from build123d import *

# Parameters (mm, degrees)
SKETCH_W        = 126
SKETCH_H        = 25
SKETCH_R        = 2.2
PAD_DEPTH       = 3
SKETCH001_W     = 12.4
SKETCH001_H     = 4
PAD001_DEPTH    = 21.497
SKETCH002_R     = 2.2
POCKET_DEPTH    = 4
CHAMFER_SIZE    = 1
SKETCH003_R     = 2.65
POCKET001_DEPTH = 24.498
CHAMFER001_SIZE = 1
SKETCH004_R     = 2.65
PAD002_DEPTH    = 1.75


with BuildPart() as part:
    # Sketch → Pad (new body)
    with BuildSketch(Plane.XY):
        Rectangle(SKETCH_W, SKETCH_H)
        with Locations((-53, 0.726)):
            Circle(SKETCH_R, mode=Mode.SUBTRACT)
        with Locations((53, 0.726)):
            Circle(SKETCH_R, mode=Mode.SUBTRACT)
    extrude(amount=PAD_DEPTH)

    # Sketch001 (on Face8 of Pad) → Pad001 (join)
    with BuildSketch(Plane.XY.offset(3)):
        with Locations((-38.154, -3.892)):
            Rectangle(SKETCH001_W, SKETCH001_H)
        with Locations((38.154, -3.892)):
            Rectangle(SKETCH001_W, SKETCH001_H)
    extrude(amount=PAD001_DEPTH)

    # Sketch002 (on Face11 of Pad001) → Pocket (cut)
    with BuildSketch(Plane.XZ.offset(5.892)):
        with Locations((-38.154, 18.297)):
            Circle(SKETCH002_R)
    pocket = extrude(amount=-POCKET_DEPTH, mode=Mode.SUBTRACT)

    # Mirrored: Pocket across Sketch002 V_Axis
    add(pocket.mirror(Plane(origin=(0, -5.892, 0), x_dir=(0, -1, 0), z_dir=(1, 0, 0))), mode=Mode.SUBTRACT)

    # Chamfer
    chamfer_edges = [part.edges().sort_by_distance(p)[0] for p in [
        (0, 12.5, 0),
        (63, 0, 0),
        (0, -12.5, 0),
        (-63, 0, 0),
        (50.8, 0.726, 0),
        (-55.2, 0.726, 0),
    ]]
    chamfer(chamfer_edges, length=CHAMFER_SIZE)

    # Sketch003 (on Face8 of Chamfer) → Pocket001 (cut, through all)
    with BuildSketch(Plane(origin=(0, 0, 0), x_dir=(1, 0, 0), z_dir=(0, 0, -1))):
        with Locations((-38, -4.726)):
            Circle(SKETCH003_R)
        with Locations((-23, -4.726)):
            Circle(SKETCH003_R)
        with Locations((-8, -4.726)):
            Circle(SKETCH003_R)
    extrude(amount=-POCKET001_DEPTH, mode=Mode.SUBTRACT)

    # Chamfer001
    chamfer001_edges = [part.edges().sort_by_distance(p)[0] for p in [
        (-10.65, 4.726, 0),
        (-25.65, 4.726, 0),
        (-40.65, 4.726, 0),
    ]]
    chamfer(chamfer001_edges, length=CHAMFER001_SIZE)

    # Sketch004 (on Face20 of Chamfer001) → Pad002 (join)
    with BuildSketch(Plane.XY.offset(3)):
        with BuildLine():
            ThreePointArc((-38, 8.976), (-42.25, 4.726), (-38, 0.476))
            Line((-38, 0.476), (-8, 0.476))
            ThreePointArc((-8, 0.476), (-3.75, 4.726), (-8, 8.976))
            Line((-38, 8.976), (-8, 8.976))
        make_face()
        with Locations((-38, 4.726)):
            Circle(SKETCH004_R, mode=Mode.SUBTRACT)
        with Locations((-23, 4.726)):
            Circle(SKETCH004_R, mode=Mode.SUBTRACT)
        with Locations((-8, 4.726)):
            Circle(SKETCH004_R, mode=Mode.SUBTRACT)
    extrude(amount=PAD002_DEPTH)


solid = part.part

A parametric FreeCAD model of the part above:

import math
import FreeCAD as App
import Part
import Sketcher

V = App.Vector


def edges_at(feature, points):
    """Names of the edges that pass closest to the given points."""
    edges = feature.Shape.Edges
    near = lambda p: min(range(len(edges)), key=lambda i: edges[i].distToShape(Part.Vertex(*p))[0])
    return sorted({f"Edge{near(p) + 1}" for p in points})


def add_polygon(sketch, points):
    """Adds a closed chain of lines whose ends are joined by coincident constraints."""
    first, n = sketch.GeometryCount, len(points)
    for a, b in zip(points, points[1:] + points[:1]):
        sketch.addGeometry(Part.LineSegment(App.Vector(*a, 0), App.Vector(*b, 0)), False)
    for i in range(n):
        sketch.addConstraint(Sketcher.Constraint("Coincident", first + i, 2, first + (i + 1) % n, 1))

doc = App.newDocument("Part")
body = doc.addObject("PartDesign::Body", "Body")

sketch1 = body.newObject("Sketcher::SketchObject", "Sketch")
sketch1.AttachmentSupport = (doc.getObject("XY_Plane"), [""])
sketch1.MapMode = "FlatFace"
add_polygon(sketch1, [(-63, 12.5), (-63, -12.5), (63, -12.5), (63, 12.5)])
sketch1.addGeometry(Part.Circle(V(-53, 0.7, 0), V(0, 0, 1), 2.2), False)
sketch1.addGeometry(Part.Circle(V(53, 0.7, 0), V(0, 0, 1), 2.2), False)
sketch1.addConstraint([
    Sketcher.Constraint("Vertical", 0),
    Sketcher.Constraint("Horizontal", 1),
    Sketcher.Constraint("Vertical", 2),
    Sketcher.Constraint("Horizontal", 3),
    Sketcher.Constraint("Equal", 4, 5),
    Sketcher.Constraint("Symmetric", 0, 2, 2, 2, -1, 1),
    Sketcher.Constraint("Symmetric", 4, 3, 5, 3, -2),
    Sketcher.Constraint("Diameter", 4, 4.4),
    Sketcher.Constraint("DistanceX", 1, 1, 1, 2, 126.0),
    Sketcher.Constraint("DistanceY", 0, 2, 0, 1, 25.0),
    Sketcher.Constraint("DistanceX", 4, 3, -1, 1, 53.0),
    Sketcher.Constraint("DistanceY", -1, 1, 4, 3, 0.726),
])
pad1 = body.newObject("PartDesign::Pad", "Pad")
pad1.Profile = sketch1
pad1.Length = 3

sketch2 = body.newObject("Sketcher::SketchObject", "Sketch001")
sketch2.AttachmentSupport = (doc.getObject("XY_Plane"), [""])
sketch2.MapMode = "FlatFace"
sketch2.AttachmentOffset = App.Placement(V(0, 0, 3), App.Rotation())
add_polygon(sketch2, [(-44.4, -1.9), (-44.4, -5.9), (-32, -5.9), (-32, -1.9)])
add_polygon(sketch2, [(32, -1.9), (32, -5.9), (44.4, -5.9), (44.4, -1.9)])
sketch2.addConstraint([
    Sketcher.Constraint("Vertical", 0),
    Sketcher.Constraint("Horizontal", 1),
    Sketcher.Constraint("Vertical", 2),
    Sketcher.Constraint("Horizontal", 3),
    Sketcher.Constraint("Vertical", 4),
    Sketcher.Constraint("Horizontal", 5),
    Sketcher.Constraint("Vertical", 6),
    Sketcher.Constraint("Horizontal", 7),
    Sketcher.Constraint("Symmetric", 1, 2, 4, 2, -2),
    Sketcher.Constraint("Symmetric", 3, 2, 6, 2, -2),
    Sketcher.Constraint("DistanceY", 0, 2, 0, 1, 4.0),
    Sketcher.Constraint("DistanceX", 1, 1, 1, 2, 12.4),
    Sketcher.Constraint("DistanceX", 0, 2, -1, 1, 44.354),
    Sketcher.Constraint("DistanceY", 0, 2, -1, 1, 5.892),
])
pad2 = body.newObject("PartDesign::Pad", "Pad001")
pad2.Profile = sketch2
pad2.Length = 21.497

sketch3 = body.newObject("Sketcher::SketchObject", "Sketch002")
sketch3.AttachmentSupport = (doc.getObject("XZ_Plane"), [""])
sketch3.MapMode = "FlatFace"
sketch3.AttachmentOffset = App.Placement(V(0, 0, 5.892), App.Rotation())
sketch3.addGeometry(Part.Circle(V(-38.2, 18.3, 0), V(0, 0, 1), 2.2), False)
sketch3.addConstraint([
    Sketcher.Constraint("Diameter", 0, 4.4),
    Sketcher.Constraint("DistanceX", 0, 3, -1, 1, 38.154),
    Sketcher.Constraint("DistanceY", -1, 1, 0, 3, 18.297),
])
pocket1 = body.newObject("PartDesign::Pocket", "Pocket")
pocket1.Profile = sketch3
pocket1.Length = 4
doc.recompute()

mirrored = body.newObject("PartDesign::Mirrored", "Mirrored")
mirrored.Originals = [pocket1]
mirrored.MirrorPlane = (doc.getObject("YZ_Plane"), [""])
body.Tip = mirrored
doc.recompute()

chamfer = body.newObject("PartDesign::Chamfer", "Chamfer")
chamfer.Base = (mirrored, edges_at(mirrored, [
    (0, 12.5, 0),
    (63, 0, 0),
    (0, -12.5, 0),
    (-63, 0, 0),
    (50.8, 0.726, 0),
    (-55.2, 0.726, 0),
]))
chamfer.Size = 1

sketch4 = body.newObject("Sketcher::SketchObject", "Sketch003")
sketch4.AttachmentSupport = (doc.getObject("XY_Plane"), [""])
sketch4.MapMode = "FlatFace"
sketch4.addGeometry([
    Part.Circle(V(-38, 4.7, 0), V(0, 0, 1), 2.6),
    Part.Circle(V(-23, 4.7, 0), V(0, 0, 1), 2.6),
    Part.Circle(V(-8, 4.7, 0), V(0, 0, 1), 2.6),
], False)
sketch4.addConstraint([
    Sketcher.Constraint("Equal", 0, 1),
    Sketcher.Constraint("Equal", 1, 2),
    Sketcher.Constraint("Horizontal", 0, 3, 1, 3),
    Sketcher.Constraint("Horizontal", 1, 3, 2, 3),
    Sketcher.Constraint("Diameter", 0, 5.3),
    Sketcher.Constraint("DistanceX", 0, 3, -1, 1, 38.0),
    Sketcher.Constraint("DistanceX", 1, 3, -1, 1, 23.0),
    Sketcher.Constraint("DistanceX", 2, 3, -1, 1, 8.0),
    Sketcher.Constraint("DistanceY", -1, 1, 0, 3, 4.726),
])
pocket2 = body.newObject("PartDesign::Pocket", "Pocket001")
pocket2.Profile = sketch4
pocket2.Type = "ThroughAll"
pocket2.Reversed = True
doc.recompute()

chamfer2 = body.newObject("PartDesign::Chamfer", "Chamfer001")
chamfer2.Base = (pocket2, edges_at(pocket2, [(-10.65, 4.726, 0), (-25.65, 4.726, 0), (-40.65, 4.726, 0)]))
chamfer2.Size = 1

sketch5 = body.newObject("Sketcher::SketchObject", "Sketch004")
sketch5.AttachmentSupport = (doc.getObject("XY_Plane"), [""])
sketch5.MapMode = "FlatFace"
sketch5.AttachmentOffset = App.Placement(V(0, 0, 3), App.Rotation())
sketch5.addGeometry([
    Part.ArcOfCircle(Part.Circle(V(-38, 4.7, 0), V(0, 0, 1), 4.2), math.radians(90), math.radians(270)),
    Part.LineSegment(V(-38, 0.5, 0), V(-8, 0.5, 0)),
    Part.ArcOfCircle(Part.Circle(V(-8, 4.7, 0), V(0, 0, 1), 4.2), math.radians(-90), math.radians(90)),
    Part.LineSegment(V(-8, 9, 0), V(-38, 9, 0)),
    Part.Circle(V(-38, 4.7, 0), V(0, 0, 1), 2.6),
    Part.Circle(V(-23, 4.7, 0), V(0, 0, 1), 2.6),
    Part.Circle(V(-8, 4.7, 0), V(0, 0, 1), 2.6),
], False)
sketch5.addConstraint([
    Sketcher.Constraint("Tangent", 0, 2, 1, 1),
    Sketcher.Constraint("Tangent", 1, 2, 2, 1),
    Sketcher.Constraint("Tangent", 2, 2, 3, 1),
    Sketcher.Constraint("Tangent", 3, 2, 0, 1),
    Sketcher.Constraint("Horizontal", 1),
    Sketcher.Constraint("Horizontal", 3),
    Sketcher.Constraint("Coincident", 4, 3, 0, 3),
    Sketcher.Constraint("Coincident", 6, 3, 2, 3),
    Sketcher.Constraint("Equal", 4, 5),
    Sketcher.Constraint("Equal", 5, 6),
    Sketcher.Constraint("Horizontal", 4, 3, 5, 3),
    Sketcher.Constraint("Diameter", 4, 5.3),
    Sketcher.Constraint("DistanceX", 1, 1, 1, 2, 30.0),
    Sketcher.Constraint("Radius", 0, 4.25),
    Sketcher.Constraint("DistanceX", 0, 3, -1, 1, 38.0),
    Sketcher.Constraint("DistanceX", 5, 3, -1, 1, 23.0),
    Sketcher.Constraint("DistanceY", -1, 1, 0, 3, 4.726),
])
pad3 = body.newObject("PartDesign::Pad", "Pad002")
pad3.Profile = sketch5
pad3.Length = 1.75

doc.recompute()
